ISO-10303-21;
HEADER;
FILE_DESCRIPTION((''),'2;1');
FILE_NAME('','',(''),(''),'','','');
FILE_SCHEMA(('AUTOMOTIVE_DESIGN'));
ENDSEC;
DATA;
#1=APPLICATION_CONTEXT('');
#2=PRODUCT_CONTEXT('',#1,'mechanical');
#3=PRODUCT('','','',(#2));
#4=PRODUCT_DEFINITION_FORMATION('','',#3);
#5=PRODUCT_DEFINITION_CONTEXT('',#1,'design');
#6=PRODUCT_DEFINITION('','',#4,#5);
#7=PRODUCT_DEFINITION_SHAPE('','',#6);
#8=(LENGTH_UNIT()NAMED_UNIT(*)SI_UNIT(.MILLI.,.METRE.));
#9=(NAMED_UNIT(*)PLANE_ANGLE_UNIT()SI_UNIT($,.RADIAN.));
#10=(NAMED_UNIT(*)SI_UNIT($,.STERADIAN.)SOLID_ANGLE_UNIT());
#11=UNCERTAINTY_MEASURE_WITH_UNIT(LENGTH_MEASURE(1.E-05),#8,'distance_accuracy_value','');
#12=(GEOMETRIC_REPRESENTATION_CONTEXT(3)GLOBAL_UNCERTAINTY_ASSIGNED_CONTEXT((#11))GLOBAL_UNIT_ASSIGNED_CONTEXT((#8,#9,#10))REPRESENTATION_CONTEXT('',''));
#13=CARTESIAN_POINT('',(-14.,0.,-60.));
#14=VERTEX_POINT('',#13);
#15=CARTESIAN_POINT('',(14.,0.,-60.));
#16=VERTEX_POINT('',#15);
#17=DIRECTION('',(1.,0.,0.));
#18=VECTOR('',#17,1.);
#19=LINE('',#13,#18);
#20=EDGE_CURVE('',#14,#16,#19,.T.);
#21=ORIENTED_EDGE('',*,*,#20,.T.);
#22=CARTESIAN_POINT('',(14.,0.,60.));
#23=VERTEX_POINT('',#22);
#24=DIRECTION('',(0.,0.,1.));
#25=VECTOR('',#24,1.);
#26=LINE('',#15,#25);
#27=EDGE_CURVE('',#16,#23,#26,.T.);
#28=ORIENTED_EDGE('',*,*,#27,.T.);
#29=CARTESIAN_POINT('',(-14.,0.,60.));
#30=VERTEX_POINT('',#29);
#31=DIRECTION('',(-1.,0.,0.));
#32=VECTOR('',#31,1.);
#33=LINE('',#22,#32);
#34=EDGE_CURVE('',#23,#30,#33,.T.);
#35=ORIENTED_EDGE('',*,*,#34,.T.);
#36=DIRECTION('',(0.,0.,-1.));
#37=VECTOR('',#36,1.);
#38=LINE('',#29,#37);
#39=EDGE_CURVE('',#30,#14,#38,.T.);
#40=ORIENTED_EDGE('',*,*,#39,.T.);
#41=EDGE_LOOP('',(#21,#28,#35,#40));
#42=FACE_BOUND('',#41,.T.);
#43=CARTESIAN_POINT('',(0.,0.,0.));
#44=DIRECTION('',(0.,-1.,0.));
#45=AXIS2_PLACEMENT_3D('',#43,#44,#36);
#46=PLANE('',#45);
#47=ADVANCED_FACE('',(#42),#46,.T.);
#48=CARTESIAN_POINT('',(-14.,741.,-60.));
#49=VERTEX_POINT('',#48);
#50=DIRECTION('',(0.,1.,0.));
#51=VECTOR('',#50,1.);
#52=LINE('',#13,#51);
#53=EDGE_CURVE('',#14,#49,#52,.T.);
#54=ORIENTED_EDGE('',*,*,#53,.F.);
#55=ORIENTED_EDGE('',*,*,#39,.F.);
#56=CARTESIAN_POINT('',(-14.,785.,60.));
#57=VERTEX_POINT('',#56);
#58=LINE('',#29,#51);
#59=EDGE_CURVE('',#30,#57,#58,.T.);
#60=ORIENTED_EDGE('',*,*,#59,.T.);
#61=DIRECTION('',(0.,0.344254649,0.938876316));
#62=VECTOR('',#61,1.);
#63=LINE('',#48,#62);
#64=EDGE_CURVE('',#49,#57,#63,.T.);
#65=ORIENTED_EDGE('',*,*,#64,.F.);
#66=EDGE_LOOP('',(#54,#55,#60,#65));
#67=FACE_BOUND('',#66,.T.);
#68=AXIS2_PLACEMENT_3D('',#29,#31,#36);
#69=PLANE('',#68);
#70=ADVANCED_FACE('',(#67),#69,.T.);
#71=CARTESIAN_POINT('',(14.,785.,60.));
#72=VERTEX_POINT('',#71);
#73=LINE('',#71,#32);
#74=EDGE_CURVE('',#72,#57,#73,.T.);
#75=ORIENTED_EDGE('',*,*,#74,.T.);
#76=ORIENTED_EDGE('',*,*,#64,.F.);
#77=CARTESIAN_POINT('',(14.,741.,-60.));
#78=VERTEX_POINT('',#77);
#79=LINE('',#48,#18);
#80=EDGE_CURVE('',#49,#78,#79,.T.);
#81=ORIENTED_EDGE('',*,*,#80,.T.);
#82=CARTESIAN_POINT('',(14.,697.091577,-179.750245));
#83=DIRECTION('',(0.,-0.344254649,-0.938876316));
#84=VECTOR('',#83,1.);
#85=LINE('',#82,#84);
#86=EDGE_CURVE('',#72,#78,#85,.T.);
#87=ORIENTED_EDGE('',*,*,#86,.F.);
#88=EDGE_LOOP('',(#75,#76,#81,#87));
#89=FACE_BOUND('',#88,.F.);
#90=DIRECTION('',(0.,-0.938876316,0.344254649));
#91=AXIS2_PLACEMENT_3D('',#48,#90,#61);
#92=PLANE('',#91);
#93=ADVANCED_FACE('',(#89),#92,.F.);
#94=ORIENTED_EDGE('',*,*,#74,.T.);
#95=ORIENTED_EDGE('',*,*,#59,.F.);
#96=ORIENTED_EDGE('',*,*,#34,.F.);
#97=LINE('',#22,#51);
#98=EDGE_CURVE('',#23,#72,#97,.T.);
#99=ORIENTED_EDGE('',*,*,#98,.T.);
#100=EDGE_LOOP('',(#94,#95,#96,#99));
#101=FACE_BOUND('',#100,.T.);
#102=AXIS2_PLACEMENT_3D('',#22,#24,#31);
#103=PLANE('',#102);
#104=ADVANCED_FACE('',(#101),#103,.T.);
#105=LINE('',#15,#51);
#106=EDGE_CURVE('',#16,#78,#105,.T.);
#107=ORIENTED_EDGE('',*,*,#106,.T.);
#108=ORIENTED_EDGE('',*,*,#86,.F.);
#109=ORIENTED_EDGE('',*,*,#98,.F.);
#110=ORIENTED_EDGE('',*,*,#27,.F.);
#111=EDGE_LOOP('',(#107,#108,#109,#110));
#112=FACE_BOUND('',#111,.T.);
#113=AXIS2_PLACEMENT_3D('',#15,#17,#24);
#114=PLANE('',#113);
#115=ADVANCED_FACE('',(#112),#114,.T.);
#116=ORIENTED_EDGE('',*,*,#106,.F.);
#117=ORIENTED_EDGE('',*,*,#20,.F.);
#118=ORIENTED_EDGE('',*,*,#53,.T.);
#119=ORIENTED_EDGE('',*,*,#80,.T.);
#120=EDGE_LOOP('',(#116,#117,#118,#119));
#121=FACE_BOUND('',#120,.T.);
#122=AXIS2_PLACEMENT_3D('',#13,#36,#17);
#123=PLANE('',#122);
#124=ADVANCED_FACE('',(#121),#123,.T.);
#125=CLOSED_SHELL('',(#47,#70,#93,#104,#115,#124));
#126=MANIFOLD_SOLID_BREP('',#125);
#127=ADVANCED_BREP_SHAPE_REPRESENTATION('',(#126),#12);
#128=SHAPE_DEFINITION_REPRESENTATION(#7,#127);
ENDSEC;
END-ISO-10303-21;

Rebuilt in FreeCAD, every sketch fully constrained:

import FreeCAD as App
import Part
import Sketcher

V = App.Vector
Q = App.Units.Quantity


def add_polygon(sketch, points):
    """Adds a closed chain of lines whose ends are joined by coincident constraints."""
    first, n = sketch.GeometryCount, len(points)
    for a, b in zip(points, points[1:] + points[:1]):
        sketch.addGeometry(Part.LineSegment(App.Vector(*a, 0), App.Vector(*b, 0)), False)
    for i in range(n):
        sketch.addConstraint(Sketcher.Constraint("Coincident", first + i, 2, first + (i + 1) % n, 1))

doc = App.newDocument("Part")
body = doc.addObject("PartDesign::Body", "Body")

# Sketch on XZ plane
sketch1 = doc.addObject("Sketcher::SketchObject", "Sketch")
body.addObject(sketch1)
sketch1.AttachmentSupport = (doc.XZ_Plane, [""])
sketch1.MapMode = "FlatFace"
add_polygon(sketch1, [(-14, 60), (-14, -60), (14, -60), (14, 60)])  # lines 0-3
sketch1.addConstraint([
    Sketcher.Constraint("Vertical", 0),
    Sketcher.Constraint("Horizontal", 1),
    Sketcher.Constraint("Vertical", 2),
    Sketcher.Constraint("Horizontal", 3),
    Sketcher.Constraint("Symmetric", 0, 2, 2, 2, -1, 1),
    Sketcher.Constraint("DistanceX", 1, 1, 1, 2, Q("28 mm")),
    Sketcher.Constraint("DistanceY", 0, 2, 0, 1, Q("120 mm")),
])
pad1 = doc.addObject("PartDesign::Pad", "Pad")
body.addObject(pad1)
pad1.Profile = sketch1
pad1.Length = 785
pad1.Reversed = True

# Sketch on YZ plane
sketch2 = doc.addObject("Sketcher::SketchObject", "Sketch001")
body.addObject(sketch2)
sketch2.AttachmentSupport = (doc.YZ_Plane, [""])
sketch2.MapMode = "FlatFace"
sketch2.AttachmentOffset = App.Placement(V(0, 0, -14), App.Rotation())
add_polygon(sketch2, [(785, 60), (785, -60), (741, -60)])  # lines 0-2
sketch2.addConstraint([
    Sketcher.Constraint("Vertical", 0),
    Sketcher.Constraint("Horizontal", 1),
    Sketcher.Constraint("DistanceX", 1, 2, 1, 1, Q("44 mm")),
    Sketcher.Constraint("DistanceY", 0, 2, 0, 1, Q("120 mm")),
    Sketcher.Constraint("DistanceX", -1, 1, 0, 2, Q("785 mm")),
    Sketcher.Constraint("DistanceY", 0, 2, -1, 1, Q("60 mm")),
])
pocket1 = doc.addObject("PartDesign::Pocket", "Pocket")
body.addObject(pocket1)
pocket1.Profile = sketch2
pocket1.Length = 125.5662
pocket1.Reversed = True

doc.recompute()
